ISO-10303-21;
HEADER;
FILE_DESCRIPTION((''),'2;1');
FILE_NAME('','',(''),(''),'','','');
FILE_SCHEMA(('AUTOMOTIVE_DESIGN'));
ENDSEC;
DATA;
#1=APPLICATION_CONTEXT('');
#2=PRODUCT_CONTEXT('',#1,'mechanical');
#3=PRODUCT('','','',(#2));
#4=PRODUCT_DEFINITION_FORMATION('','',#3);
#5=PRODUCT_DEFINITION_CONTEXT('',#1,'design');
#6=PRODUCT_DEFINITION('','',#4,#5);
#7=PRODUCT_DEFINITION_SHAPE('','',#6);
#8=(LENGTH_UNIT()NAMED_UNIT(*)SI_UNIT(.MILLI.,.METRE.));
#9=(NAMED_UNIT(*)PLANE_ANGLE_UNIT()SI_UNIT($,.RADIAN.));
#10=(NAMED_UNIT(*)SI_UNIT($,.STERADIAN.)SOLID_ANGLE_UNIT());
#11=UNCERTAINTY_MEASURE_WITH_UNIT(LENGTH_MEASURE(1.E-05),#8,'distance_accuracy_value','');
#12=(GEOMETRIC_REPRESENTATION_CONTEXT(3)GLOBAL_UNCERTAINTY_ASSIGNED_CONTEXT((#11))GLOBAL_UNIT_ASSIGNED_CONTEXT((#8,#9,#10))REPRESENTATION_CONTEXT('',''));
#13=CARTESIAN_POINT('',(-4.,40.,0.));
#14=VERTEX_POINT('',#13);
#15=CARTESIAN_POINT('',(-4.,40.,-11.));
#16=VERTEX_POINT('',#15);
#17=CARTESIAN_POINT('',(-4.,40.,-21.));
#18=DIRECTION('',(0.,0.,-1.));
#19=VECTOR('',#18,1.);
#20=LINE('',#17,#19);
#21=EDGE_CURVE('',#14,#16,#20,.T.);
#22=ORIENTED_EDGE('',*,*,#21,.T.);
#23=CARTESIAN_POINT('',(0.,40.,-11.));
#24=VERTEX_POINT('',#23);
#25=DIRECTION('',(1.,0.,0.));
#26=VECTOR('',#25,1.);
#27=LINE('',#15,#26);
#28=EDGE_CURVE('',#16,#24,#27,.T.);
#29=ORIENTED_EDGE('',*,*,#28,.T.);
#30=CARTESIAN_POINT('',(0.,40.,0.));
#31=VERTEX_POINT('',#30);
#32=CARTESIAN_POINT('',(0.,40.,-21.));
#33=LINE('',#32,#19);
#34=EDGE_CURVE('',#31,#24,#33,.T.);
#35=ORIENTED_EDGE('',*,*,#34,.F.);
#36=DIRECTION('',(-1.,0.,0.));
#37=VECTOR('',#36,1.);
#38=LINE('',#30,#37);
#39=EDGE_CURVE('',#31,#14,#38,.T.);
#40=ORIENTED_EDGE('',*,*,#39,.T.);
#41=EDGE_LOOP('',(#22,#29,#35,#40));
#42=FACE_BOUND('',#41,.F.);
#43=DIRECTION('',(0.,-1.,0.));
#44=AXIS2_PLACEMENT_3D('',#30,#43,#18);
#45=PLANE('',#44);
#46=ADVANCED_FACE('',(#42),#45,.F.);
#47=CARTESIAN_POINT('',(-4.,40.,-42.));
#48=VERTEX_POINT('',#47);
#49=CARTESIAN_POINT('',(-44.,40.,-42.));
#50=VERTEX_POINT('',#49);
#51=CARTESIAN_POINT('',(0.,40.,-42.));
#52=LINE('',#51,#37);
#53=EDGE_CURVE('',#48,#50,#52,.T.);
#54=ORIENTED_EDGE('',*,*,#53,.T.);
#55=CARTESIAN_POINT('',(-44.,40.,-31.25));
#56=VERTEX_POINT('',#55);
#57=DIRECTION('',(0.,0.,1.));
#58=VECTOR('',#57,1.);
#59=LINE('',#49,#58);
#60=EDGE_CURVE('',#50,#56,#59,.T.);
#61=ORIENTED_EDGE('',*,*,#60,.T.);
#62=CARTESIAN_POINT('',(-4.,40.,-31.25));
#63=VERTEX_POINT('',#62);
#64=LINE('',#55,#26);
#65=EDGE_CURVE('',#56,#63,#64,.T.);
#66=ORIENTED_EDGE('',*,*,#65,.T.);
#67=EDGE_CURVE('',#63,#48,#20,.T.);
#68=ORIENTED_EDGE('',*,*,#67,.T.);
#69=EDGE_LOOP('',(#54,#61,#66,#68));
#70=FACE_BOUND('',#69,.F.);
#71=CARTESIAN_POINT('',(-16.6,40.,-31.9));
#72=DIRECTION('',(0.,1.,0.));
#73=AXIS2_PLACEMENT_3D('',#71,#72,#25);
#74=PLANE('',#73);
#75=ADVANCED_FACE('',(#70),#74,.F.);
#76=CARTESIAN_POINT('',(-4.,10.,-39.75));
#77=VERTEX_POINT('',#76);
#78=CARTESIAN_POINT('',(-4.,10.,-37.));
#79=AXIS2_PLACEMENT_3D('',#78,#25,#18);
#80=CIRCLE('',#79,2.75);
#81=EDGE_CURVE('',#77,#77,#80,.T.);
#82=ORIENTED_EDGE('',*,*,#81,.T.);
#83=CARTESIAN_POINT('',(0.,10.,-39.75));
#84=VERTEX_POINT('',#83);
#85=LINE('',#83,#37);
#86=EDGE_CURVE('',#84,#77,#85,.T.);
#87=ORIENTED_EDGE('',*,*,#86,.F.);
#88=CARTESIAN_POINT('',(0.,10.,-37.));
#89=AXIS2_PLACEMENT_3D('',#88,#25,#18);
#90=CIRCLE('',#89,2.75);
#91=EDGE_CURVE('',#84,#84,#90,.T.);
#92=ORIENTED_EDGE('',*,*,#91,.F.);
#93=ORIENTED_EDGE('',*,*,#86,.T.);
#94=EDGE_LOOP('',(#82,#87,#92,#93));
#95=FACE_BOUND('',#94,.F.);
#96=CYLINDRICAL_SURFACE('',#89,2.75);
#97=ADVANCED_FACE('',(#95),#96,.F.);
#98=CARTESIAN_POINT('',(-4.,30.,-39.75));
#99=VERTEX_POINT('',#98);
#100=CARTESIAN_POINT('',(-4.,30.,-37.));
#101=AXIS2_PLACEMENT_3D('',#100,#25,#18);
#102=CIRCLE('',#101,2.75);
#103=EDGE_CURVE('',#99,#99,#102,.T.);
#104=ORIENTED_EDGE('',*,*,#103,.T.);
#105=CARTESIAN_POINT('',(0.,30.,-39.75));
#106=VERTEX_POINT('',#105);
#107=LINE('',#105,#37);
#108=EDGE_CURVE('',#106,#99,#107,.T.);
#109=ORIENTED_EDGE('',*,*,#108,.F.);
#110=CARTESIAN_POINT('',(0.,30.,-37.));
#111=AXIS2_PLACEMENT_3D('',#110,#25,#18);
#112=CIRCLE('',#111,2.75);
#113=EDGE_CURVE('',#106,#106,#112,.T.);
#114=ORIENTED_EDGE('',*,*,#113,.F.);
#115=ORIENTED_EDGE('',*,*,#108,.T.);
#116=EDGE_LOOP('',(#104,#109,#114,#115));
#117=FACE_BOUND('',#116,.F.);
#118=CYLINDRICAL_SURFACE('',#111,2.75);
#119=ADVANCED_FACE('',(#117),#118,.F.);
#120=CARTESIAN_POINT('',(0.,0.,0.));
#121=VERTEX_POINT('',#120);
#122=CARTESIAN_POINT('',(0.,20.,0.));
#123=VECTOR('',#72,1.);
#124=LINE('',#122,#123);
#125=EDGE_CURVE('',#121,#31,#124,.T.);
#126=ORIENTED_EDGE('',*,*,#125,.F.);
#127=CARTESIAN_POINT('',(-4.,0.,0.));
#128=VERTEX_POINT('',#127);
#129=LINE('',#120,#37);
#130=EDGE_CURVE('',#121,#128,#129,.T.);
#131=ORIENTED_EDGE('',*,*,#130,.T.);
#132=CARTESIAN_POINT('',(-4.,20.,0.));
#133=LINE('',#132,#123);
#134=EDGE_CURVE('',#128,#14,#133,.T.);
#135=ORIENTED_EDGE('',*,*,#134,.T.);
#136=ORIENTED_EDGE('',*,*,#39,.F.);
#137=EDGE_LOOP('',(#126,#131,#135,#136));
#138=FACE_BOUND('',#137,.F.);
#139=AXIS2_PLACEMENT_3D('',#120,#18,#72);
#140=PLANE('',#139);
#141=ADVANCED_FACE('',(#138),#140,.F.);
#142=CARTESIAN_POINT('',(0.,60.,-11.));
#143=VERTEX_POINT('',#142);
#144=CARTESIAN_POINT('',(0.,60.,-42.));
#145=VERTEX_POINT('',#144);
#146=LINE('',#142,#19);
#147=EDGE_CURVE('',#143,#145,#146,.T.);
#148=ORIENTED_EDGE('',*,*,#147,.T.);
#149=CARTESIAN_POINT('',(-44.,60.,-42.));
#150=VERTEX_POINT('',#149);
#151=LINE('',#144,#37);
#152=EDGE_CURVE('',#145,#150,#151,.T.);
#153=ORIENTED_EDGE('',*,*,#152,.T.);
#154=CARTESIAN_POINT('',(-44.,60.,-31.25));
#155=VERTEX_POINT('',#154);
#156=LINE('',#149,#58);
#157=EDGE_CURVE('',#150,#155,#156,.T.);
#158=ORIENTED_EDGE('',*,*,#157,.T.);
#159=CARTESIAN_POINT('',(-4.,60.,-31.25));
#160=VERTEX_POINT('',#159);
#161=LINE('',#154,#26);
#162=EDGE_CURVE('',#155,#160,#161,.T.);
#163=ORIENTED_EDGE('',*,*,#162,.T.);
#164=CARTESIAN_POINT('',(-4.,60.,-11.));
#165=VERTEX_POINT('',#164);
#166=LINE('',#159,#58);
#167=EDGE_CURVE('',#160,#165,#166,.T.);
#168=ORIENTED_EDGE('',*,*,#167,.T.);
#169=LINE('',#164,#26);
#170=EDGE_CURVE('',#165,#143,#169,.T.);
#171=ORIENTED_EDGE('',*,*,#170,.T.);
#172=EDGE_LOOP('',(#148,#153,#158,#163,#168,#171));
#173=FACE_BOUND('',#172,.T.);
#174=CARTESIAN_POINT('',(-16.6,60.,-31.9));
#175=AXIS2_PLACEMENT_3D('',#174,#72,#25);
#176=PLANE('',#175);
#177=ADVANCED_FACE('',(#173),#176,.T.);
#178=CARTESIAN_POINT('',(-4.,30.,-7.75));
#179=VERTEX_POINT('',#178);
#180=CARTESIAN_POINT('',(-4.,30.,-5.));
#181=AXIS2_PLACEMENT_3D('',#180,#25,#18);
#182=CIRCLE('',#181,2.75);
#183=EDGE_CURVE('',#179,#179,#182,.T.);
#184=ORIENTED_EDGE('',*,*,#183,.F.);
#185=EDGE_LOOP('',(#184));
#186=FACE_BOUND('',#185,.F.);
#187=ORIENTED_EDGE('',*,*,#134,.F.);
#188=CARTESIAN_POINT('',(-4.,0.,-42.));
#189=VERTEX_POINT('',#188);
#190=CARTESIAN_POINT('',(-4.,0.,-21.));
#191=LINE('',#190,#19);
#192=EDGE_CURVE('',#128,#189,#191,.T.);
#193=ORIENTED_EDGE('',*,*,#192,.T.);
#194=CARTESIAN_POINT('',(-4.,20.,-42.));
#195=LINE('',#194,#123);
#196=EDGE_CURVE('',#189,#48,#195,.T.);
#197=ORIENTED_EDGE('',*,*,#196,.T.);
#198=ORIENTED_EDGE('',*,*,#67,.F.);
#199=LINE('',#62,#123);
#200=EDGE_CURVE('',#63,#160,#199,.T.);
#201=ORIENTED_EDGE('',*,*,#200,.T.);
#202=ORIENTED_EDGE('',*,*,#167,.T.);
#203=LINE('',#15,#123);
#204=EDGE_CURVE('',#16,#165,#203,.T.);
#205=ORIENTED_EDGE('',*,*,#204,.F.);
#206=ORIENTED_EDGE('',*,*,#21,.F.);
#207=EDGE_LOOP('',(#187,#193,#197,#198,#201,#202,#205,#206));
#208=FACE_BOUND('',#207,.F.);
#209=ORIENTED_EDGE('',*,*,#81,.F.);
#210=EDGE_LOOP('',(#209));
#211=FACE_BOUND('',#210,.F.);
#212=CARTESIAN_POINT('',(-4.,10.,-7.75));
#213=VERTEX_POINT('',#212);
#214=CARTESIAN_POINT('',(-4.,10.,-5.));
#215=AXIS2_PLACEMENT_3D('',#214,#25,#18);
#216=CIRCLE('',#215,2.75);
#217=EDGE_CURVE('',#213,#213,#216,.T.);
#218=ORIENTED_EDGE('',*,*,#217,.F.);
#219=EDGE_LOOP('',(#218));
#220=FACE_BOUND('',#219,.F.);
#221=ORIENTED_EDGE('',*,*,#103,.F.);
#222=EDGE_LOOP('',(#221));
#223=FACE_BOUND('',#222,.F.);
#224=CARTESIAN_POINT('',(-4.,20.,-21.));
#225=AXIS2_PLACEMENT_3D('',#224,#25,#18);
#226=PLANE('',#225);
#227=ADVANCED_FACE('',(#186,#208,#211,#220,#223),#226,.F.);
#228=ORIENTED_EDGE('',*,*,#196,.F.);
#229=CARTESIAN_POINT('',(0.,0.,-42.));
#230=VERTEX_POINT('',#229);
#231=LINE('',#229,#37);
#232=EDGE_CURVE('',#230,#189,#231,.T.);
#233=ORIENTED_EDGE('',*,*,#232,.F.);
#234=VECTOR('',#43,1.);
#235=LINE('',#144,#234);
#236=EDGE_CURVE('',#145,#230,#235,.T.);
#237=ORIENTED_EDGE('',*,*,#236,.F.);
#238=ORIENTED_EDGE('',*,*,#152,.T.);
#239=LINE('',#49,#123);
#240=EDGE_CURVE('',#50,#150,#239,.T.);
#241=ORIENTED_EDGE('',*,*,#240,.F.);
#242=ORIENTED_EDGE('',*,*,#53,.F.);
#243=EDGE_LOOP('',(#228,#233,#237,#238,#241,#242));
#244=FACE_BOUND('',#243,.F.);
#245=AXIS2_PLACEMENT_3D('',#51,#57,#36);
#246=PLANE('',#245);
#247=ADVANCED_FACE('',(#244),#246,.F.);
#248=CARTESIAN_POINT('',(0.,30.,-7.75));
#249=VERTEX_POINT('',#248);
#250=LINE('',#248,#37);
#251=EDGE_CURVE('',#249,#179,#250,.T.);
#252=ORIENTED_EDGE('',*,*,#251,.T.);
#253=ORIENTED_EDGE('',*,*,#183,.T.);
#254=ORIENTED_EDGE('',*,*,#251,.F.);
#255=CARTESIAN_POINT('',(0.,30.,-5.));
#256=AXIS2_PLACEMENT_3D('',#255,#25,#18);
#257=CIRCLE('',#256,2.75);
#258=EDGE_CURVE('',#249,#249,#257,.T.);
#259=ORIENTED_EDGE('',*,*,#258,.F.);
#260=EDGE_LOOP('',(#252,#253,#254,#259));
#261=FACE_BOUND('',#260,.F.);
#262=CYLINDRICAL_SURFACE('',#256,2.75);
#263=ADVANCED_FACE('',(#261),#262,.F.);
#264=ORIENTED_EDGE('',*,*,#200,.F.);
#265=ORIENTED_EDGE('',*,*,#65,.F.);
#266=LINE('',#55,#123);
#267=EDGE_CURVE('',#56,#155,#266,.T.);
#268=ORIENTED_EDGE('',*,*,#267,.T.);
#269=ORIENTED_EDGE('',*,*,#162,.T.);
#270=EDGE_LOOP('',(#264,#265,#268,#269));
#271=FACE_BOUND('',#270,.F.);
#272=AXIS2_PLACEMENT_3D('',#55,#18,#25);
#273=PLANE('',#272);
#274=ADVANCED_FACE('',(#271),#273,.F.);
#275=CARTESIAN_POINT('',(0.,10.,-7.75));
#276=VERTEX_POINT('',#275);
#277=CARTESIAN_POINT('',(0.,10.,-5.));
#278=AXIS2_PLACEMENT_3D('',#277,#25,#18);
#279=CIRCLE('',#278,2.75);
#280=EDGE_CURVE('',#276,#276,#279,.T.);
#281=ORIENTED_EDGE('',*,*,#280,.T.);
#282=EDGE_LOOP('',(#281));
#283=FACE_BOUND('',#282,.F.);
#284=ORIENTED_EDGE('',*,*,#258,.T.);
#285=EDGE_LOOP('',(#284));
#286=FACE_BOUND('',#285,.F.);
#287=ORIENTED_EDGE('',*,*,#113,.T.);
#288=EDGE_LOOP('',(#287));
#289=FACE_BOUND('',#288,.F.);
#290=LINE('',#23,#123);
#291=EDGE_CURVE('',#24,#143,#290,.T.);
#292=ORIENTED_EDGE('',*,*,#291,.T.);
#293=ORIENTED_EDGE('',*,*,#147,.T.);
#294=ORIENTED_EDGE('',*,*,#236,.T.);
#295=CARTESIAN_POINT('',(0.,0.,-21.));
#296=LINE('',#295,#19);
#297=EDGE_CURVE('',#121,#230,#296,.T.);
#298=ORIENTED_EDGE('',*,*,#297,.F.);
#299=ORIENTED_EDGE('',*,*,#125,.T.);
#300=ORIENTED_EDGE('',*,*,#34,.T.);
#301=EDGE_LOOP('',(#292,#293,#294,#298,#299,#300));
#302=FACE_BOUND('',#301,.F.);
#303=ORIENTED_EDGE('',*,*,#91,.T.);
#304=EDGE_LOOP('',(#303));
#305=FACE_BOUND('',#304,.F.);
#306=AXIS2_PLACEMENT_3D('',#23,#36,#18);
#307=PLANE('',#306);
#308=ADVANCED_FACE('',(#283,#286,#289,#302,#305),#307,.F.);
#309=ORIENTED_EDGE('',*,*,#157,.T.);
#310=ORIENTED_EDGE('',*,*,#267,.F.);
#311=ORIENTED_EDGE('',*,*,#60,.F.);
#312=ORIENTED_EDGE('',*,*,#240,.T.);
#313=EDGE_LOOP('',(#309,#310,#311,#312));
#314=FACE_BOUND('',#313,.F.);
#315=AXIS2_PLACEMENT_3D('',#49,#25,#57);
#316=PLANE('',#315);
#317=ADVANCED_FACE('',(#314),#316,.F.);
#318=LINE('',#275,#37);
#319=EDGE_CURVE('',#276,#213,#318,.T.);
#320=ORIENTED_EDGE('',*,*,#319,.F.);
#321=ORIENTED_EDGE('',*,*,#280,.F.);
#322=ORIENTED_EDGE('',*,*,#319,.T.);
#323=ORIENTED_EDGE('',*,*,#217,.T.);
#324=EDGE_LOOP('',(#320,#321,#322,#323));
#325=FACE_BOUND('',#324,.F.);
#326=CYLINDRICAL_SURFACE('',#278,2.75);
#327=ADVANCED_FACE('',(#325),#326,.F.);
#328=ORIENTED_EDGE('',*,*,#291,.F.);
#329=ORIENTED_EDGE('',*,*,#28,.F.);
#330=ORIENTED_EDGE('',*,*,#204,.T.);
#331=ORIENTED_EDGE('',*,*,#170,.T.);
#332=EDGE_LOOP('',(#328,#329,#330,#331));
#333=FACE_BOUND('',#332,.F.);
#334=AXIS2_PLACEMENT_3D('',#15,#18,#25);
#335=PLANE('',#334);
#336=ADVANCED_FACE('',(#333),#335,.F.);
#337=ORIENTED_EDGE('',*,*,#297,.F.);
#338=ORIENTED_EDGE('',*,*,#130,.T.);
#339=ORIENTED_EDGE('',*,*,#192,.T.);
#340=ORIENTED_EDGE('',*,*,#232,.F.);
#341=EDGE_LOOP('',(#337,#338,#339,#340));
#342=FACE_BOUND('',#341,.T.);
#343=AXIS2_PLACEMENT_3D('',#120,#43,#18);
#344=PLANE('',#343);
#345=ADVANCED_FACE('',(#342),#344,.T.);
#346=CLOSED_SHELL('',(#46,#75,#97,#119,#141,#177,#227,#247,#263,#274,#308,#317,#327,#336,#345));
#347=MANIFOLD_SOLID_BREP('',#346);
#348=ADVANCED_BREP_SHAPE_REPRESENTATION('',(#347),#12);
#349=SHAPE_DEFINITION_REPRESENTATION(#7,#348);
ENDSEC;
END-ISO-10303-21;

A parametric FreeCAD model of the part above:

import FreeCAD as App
import Part
import Sketcher
from FreeCAD import Vector


def add_polygon(sketch, points):
    """Adds a closed chain of lines whose ends are joined by coincident constraints."""
    first, n = sketch.GeometryCount, len(points)
    for a, b in zip(points, points[1:] + points[:1]):
        sketch.addGeometry(Part.LineSegment(App.Vector(*a, 0), App.Vector(*b, 0)), False)
    for i in range(n):
        sketch.addConstraint(Sketcher.Constraint("Coincident", first + i, 2, first + (i + 1) % n, 1))

doc = App.newDocument("Part")
params = doc.addObject("Spreadsheet::Sheet", "Params")
for row, (alias, value) in enumerate([
    ("sketch1_diameter", "5.5 mm"),
    ("sketch1_width", "40 mm"),
    ("sketch1_height", "42 mm"),
    ("pad1_length", "4 mm"),
    ("sketch2_width", "44 mm"),
    ("sketch2_width2", "40 mm"),
    ("sketch2_height", "31 mm"),
    ("sketch2_height2", "10.75 mm"),
    ("pad2_length", "20 mm"),
], start=1):
    params.set(f"A{row}", alias)
    params.set(f"B{row}", "=" + value)
    params.setAlias(f"B{row}", alias)

body = doc.addObject("PartDesign::Body", "Body")

# Sketch on YZ plane
sketch1 = body.newObject("Sketcher::SketchObject", "Sketch")
sketch1.AttachmentSupport = (doc.getObject("YZ_Plane"), [""])
sketch1.MapMode = "FlatFace"
add_polygon(sketch1, [(40, 0), (0, 0), (0, -42), (40, -42)])  # lines 0-3
sketch1.addGeometry(Part.Circle(Vector(10, -5, 0), Vector(0, 0, 1), 2.75), False)  # 4
sketch1.addGeometry(Part.Circle(Vector(10, -37, 0), Vector(0, 0, 1), 2.75), False)  # 5
sketch1.addGeometry(Part.Circle(Vector(30, -5, 0), Vector(0, 0, 1), 2.75), False)  # 6
sketch1.addGeometry(Part.Circle(Vector(30, -37, 0), Vector(0, 0, 1), 2.75), False)  # 7
sketch1.addConstraint([
    Sketcher.Constraint("Horizontal", 0),
    Sketcher.Constraint("Vertical", 1),
    Sketcher.Constraint("Horizontal", 2),
    Sketcher.Constraint("Vertical", 3),
    Sketcher.Constraint("Coincident", 0, 2, -1, 1),
    Sketcher.Constraint("Equal", 4, 5),
    Sketcher.Constraint("Equal", 5, 6),
    Sketcher.Constraint("Equal", 6, 7),
    Sketcher.Constraint("Horizontal", 4, 3, 6, 3),
    Sketcher.Constraint("Horizontal", 5, 3, 7, 3),
    Sketcher.Constraint("Vertical", 4, 3, 5, 3),
    Sketcher.Constraint("Vertical", 6, 3, 7, 3),
    Sketcher.Constraint("Diameter", 4, 5.5),
    Sketcher.Constraint("DistanceX", 0, 2, 0, 1, 40.0),
    Sketcher.Constraint("DistanceY", 1, 2, 1, 1, 42.0),
    Sketcher.Constraint("DistanceX", -1, 1, 4, 3, 10.0),
    Sketcher.Constraint("DistanceY", 4, 3, -1, 1, 5.0),
    Sketcher.Constraint("DistanceY", 5, 3, -1, 1, 37.0),
    Sketcher.Constraint("DistanceX", -1, 1, 6, 3, 30.0),
])
sketch1.setExpression("Constraints[16]", "Params.sketch1_diameter")
sketch1.setExpression("Constraints[17]", "Params.sketch1_width")
sketch1.setExpression("Constraints[18]", "Params.sketch1_height")
pad1 = body.newObject("PartDesign::Pad", "Pad")
pad1.Profile = sketch1
pad1.setExpression("Length", "Params.pad1_length")
pad1.Reversed = True

# Sketch on XZ plane
sketch2 = body.newObject("Sketcher::SketchObject", "Sketch001")
sketch2.AttachmentSupport = (doc.getObject("XZ_Plane"), [""])
sketch2.MapMode = "FlatFace"
sketch2.AttachmentOffset = App.Placement(Vector(0, 0, -40), App.Rotation())
add_polygon(sketch2, [(0, -42), (-44, -42), (-44, -31.25), (-4, -31.25), (-4, -11), (0, -11)])  # lines 0-5
sketch2.addConstraint([
    Sketcher.Constraint("Horizontal", 0),
    Sketcher.Constraint("Vertical", 1),
    Sketcher.Constraint("Horizontal", 2),
    Sketcher.Constraint("Vertical", 3),
    Sketcher.Constraint("Horizontal", 4),
    Sketcher.Constraint("Vertical", 5),
    Sketcher.Constraint("PointOnObject", 4, 2, -2),
    Sketcher.Constraint("DistanceX", 0, 2, 0, 1, 44.0),
    Sketcher.Constraint("DistanceX", 2, 1, 2, 2, 40.0),
    Sketcher.Constraint("DistanceY", 5, 2, 5, 1, 31.0),
    Sketcher.Constraint("DistanceY", 0, 2, -1, 1, 42.0),
    Sketcher.Constraint("DistanceY", 1, 1, 1, 2, 10.75),
])
sketch2.setExpression("Constraints[13]", "Params.sketch2_width")
sketch2.setExpression("Constraints[14]", "Params.sketch2_width2")
sketch2.setExpression("Constraints[15]", "Params.sketch2_height")
sketch2.setExpression("Constraints[17]", "Params.sketch2_height2")
pad2 = body.newObject("PartDesign::Pad", "Pad001")
pad2.Profile = sketch2
pad2.setExpression("Length", "Params.pad2_length")
pad2.Reversed = True

doc.recompute()
